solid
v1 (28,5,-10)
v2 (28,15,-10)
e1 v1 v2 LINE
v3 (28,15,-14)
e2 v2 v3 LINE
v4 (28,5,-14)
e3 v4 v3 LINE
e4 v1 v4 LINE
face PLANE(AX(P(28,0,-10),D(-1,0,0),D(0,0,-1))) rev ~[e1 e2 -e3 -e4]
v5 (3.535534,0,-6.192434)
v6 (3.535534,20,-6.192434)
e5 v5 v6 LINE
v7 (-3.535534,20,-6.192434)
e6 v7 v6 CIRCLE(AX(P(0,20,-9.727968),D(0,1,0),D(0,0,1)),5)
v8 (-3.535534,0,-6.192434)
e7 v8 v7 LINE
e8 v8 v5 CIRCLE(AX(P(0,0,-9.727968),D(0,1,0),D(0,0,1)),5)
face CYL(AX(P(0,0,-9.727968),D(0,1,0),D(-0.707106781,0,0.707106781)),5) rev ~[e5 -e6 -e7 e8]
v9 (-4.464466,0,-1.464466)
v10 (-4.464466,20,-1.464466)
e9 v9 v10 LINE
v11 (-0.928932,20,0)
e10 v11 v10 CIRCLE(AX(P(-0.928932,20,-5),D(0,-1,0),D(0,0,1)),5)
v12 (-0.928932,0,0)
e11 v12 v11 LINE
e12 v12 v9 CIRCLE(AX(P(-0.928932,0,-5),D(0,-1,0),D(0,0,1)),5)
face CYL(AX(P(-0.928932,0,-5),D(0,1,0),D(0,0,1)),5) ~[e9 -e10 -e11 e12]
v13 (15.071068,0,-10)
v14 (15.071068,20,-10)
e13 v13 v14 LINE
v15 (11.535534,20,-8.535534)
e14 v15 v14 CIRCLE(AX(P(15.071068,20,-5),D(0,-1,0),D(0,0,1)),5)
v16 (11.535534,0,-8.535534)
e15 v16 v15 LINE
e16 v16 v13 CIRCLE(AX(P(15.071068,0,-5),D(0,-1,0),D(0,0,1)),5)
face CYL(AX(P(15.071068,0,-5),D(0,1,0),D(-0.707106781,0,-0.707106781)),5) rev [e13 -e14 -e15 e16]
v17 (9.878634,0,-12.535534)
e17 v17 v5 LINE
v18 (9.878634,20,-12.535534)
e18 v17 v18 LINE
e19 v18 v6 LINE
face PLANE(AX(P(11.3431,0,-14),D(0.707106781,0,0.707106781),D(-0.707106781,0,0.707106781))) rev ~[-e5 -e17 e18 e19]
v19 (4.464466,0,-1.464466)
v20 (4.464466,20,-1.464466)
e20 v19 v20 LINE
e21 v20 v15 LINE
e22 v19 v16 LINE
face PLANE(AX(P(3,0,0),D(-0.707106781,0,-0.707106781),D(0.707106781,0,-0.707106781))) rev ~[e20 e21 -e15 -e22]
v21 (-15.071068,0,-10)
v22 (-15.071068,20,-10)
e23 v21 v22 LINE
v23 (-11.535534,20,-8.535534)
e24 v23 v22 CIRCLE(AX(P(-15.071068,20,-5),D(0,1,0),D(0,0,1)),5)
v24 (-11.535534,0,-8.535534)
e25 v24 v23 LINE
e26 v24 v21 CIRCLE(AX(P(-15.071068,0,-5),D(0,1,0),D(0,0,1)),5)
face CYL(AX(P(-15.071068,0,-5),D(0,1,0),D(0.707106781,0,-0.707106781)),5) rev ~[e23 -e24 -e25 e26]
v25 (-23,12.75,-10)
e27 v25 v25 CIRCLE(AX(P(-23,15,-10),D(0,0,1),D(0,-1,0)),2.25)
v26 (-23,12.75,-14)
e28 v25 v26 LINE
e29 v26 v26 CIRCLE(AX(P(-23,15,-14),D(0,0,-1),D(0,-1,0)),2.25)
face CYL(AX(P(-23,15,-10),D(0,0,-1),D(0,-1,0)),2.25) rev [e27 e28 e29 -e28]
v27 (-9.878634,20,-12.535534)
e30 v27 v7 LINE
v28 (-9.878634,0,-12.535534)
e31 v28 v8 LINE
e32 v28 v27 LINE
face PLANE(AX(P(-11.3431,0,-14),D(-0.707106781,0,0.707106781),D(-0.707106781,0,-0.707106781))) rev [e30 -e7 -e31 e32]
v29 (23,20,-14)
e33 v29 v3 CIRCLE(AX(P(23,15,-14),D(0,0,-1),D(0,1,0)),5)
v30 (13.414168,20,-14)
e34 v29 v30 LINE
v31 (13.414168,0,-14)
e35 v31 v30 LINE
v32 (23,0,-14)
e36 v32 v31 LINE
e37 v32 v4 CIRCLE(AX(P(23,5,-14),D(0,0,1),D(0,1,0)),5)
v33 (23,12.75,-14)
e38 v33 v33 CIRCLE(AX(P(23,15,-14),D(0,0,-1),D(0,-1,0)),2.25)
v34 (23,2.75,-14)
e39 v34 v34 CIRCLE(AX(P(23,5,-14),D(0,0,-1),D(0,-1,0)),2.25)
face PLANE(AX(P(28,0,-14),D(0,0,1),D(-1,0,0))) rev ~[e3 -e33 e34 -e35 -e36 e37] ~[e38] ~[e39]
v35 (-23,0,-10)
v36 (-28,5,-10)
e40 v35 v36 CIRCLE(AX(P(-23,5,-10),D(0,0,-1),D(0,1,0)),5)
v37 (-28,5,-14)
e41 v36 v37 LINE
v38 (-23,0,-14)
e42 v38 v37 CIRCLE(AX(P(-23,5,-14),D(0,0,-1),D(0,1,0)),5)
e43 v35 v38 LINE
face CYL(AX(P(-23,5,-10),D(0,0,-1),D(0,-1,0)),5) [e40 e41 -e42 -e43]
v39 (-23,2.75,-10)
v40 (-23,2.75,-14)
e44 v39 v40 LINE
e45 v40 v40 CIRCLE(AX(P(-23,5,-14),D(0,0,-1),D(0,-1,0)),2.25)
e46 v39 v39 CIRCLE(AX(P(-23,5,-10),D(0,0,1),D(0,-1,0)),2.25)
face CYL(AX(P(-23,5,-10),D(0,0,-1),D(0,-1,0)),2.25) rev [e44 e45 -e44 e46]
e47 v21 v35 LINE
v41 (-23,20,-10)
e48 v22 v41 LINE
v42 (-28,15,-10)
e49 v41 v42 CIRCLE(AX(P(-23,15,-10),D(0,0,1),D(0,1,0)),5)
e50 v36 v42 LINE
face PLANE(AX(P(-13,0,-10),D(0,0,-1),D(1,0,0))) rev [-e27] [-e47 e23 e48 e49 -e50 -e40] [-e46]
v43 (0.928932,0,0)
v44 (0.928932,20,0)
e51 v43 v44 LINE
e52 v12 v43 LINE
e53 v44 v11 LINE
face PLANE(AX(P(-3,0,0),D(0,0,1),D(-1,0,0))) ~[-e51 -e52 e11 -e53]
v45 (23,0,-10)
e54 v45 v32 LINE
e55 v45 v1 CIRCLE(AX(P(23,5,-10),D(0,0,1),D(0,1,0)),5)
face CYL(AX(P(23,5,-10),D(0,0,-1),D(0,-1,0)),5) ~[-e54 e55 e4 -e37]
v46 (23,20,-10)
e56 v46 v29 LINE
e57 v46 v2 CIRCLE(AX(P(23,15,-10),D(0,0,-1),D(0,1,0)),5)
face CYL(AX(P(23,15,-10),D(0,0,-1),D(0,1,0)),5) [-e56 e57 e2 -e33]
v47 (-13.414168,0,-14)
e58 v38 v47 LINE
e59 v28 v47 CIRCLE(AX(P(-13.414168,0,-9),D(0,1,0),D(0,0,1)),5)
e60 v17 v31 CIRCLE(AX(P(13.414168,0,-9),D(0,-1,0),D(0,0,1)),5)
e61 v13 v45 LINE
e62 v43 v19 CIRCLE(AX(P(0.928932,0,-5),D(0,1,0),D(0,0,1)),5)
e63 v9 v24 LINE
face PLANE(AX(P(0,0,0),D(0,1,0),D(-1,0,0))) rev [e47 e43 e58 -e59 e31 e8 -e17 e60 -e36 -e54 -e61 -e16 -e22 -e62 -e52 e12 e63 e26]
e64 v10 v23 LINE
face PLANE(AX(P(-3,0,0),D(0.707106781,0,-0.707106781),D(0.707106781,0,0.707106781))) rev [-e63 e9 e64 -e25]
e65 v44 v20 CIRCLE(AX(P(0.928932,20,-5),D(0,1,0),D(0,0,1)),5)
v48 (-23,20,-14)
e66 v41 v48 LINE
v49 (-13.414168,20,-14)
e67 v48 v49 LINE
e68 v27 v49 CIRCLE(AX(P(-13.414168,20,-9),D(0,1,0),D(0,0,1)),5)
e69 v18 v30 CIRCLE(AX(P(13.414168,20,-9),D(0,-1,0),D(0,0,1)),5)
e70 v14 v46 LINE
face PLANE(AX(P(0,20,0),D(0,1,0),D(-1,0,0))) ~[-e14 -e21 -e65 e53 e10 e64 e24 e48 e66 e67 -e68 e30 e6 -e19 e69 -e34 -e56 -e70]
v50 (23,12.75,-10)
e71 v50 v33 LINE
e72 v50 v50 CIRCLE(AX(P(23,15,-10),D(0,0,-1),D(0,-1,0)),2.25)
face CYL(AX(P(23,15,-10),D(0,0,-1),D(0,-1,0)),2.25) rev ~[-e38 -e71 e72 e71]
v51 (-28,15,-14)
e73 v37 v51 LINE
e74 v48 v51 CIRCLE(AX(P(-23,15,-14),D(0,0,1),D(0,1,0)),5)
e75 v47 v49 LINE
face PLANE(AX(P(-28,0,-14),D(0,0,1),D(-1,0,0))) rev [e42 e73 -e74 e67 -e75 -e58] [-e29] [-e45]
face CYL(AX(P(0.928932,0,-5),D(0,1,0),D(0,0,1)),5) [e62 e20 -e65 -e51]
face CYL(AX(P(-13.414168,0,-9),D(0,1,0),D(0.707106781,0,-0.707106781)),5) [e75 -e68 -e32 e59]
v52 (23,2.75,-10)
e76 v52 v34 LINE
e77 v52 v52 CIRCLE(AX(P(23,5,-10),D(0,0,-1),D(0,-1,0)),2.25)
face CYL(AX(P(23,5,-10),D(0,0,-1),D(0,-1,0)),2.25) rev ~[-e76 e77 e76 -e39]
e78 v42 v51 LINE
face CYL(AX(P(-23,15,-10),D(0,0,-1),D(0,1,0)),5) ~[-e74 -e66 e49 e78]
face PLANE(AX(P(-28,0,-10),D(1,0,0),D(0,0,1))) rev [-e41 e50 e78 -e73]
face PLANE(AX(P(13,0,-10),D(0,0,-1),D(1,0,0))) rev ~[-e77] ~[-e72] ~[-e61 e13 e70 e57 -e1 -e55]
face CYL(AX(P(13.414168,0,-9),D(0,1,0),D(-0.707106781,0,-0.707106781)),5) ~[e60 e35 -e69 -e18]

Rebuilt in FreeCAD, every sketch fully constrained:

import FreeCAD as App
import Part
import Sketcher


def edges_at(feature, points):
    """Names of the edges that pass closest to the given points."""
    edges = feature.Shape.Edges
    near = lambda p: min(range(len(edges)), key=lambda i: edges[i].distToShape(Part.Vertex(*p))[0])
    return sorted({f"Edge{near(p) + 1}" for p in points})

doc = App.newDocument("Part")
body = doc.addObject("PartDesign::Body", "Body")

# Sketch on XZ plane
sketch1 = body.newObject("Sketcher::SketchObject", "Sketch")
sketch1.AttachmentSupport = (doc.getObject("XZ_Plane"), [""])
sketch1.MapMode = "FlatFace"
sketch1.addGeometry([
    Part.LineSegment(App.Vector(0, 0, 0), App.Vector(3, 0, 0)),  # 0
    Part.LineSegment(App.Vector(3, 0, 0), App.Vector(13, -10, 0)),  # 1
    Part.LineSegment(App.Vector(13, -10, 0), App.Vector(28, -10, 0)),  # 2
    Part.LineSegment(App.Vector(28, -10, 0), App.Vector(28, -14, 0)),  # 3
    Part.LineSegment(App.Vector(28, -14, 0), App.Vector(11.3, -14, 0)),  # 4
    Part.LineSegment(App.Vector(11.3, -14, 0), App.Vector(0, -2.7, 0)),  # 5
    Part.LineSegment(App.Vector(0, -2.7, 0), App.Vector(0, 0, 0)),  # 6
], False)
sketch1.addConstraint([
    Sketcher.Constraint("Coincident", 0, 2, 1, 1),
    Sketcher.Constraint("Coincident", 1, 2, 2, 1),
    Sketcher.Constraint("Coincident", 2, 2, 3, 1),
    Sketcher.Constraint("Coincident", 3, 2, 4, 1),
    Sketcher.Constraint("Coincident", 4, 2, 5, 1),
    Sketcher.Constraint("Coincident", 5, 2, 6, 1),
    Sketcher.Constraint("Coincident", 6, 2, 0, 1),
    Sketcher.Constraint("Horizontal", 0),
    Sketcher.Constraint("Horizontal", 2),
    Sketcher.Constraint("Vertical", 3),
    Sketcher.Constraint("Horizontal", 4),
    Sketcher.Constraint("Vertical", 6),
    Sketcher.Constraint("Coincident", 6, 2, -1, 1),
    Sketcher.Constraint("Parallel", 1, 5),
    Sketcher.Constraint("DistanceX", 2, 1, 2, 2, 15.0),
    Sketcher.Constraint("DistanceY", 3, 2, 3, 1, 4.0),
    Sketcher.Constraint("DistanceY", 1, 2, -1, 1, 10.0),
    Sketcher.Constraint("DistanceX", 0, 2, 1, 2, 10.0),
    Sketcher.Constraint("DistanceX", 0, 1, 0, 2, 3.0),
    Sketcher.Constraint("DistanceX", 4, 2, 4, 1, 16.657),
])
pad1 = body.newObject("PartDesign::Pad", "Pad")
pad1.Profile = sketch1
pad1.Length = 20
pad1.Reversed = True

# Sketch on XY plane
sketch2 = body.newObject("Sketcher::SketchObject", "Sketch001")
sketch2.AttachmentSupport = (doc.getObject("XY_Plane"), [""])
sketch2.MapMode = "FlatFace"
sketch2.AttachmentOffset = App.Placement(App.Vector(0, 0, -10), App.Rotation())
sketch2.addGeometry([
    Part.Circle(App.Vector(23, 15, 0), App.Vector(0, 0, 1), 2.2),
    Part.Circle(App.Vector(23, 5, 0), App.Vector(0, 0, 1), 2.2),
], False)
sketch2.addConstraint([
    Sketcher.Constraint("Equal", 0, 1),
    Sketcher.Constraint("Vertical", 0, 3, 1, 3),
    Sketcher.Constraint("Diameter", 0, 4.5),
    Sketcher.Constraint("DistanceX", -1, 1, 0, 3, 23.0),
    Sketcher.Constraint("DistanceY", -1, 1, 0, 3, 15.0),
    Sketcher.Constraint("DistanceY", -1, 1, 1, 3, 5.0),
])
doc.recompute()
hole = body.newObject("PartDesign::Hole", "Hole")
hole.Profile = sketch2
hole.ThreadType = "None"
hole.Diameter = 4.5
hole.DepthType = "ThroughAll"
doc.recompute()

fillet = body.newObject("PartDesign::Fillet", "Fillet")
fillet.Base = (hole, edges_at(hole, [
    (28, 20, -12),
    (28, 0, -12),
    (11.343, 10, -14),
    (13, 10, -10),
    (3, 10, 0),
]))
fillet.Radius = 5
doc.recompute()

mirrored = body.newObject("PartDesign::Mirrored", "Mirrored")
mirrored.Originals = [pad1, fillet, hole]
mirrored.MirrorPlane = (doc.getObject("YZ_Plane"), [""])
body.Tip = mirrored
doc.recompute()

fillet2 = body.newObject("PartDesign::Fillet", "Fillet001")
fillet2.Base = (mirrored, edges_at(mirrored, [(0, 10, -2.657)]))
fillet2.Radius = 5

doc.recompute()
